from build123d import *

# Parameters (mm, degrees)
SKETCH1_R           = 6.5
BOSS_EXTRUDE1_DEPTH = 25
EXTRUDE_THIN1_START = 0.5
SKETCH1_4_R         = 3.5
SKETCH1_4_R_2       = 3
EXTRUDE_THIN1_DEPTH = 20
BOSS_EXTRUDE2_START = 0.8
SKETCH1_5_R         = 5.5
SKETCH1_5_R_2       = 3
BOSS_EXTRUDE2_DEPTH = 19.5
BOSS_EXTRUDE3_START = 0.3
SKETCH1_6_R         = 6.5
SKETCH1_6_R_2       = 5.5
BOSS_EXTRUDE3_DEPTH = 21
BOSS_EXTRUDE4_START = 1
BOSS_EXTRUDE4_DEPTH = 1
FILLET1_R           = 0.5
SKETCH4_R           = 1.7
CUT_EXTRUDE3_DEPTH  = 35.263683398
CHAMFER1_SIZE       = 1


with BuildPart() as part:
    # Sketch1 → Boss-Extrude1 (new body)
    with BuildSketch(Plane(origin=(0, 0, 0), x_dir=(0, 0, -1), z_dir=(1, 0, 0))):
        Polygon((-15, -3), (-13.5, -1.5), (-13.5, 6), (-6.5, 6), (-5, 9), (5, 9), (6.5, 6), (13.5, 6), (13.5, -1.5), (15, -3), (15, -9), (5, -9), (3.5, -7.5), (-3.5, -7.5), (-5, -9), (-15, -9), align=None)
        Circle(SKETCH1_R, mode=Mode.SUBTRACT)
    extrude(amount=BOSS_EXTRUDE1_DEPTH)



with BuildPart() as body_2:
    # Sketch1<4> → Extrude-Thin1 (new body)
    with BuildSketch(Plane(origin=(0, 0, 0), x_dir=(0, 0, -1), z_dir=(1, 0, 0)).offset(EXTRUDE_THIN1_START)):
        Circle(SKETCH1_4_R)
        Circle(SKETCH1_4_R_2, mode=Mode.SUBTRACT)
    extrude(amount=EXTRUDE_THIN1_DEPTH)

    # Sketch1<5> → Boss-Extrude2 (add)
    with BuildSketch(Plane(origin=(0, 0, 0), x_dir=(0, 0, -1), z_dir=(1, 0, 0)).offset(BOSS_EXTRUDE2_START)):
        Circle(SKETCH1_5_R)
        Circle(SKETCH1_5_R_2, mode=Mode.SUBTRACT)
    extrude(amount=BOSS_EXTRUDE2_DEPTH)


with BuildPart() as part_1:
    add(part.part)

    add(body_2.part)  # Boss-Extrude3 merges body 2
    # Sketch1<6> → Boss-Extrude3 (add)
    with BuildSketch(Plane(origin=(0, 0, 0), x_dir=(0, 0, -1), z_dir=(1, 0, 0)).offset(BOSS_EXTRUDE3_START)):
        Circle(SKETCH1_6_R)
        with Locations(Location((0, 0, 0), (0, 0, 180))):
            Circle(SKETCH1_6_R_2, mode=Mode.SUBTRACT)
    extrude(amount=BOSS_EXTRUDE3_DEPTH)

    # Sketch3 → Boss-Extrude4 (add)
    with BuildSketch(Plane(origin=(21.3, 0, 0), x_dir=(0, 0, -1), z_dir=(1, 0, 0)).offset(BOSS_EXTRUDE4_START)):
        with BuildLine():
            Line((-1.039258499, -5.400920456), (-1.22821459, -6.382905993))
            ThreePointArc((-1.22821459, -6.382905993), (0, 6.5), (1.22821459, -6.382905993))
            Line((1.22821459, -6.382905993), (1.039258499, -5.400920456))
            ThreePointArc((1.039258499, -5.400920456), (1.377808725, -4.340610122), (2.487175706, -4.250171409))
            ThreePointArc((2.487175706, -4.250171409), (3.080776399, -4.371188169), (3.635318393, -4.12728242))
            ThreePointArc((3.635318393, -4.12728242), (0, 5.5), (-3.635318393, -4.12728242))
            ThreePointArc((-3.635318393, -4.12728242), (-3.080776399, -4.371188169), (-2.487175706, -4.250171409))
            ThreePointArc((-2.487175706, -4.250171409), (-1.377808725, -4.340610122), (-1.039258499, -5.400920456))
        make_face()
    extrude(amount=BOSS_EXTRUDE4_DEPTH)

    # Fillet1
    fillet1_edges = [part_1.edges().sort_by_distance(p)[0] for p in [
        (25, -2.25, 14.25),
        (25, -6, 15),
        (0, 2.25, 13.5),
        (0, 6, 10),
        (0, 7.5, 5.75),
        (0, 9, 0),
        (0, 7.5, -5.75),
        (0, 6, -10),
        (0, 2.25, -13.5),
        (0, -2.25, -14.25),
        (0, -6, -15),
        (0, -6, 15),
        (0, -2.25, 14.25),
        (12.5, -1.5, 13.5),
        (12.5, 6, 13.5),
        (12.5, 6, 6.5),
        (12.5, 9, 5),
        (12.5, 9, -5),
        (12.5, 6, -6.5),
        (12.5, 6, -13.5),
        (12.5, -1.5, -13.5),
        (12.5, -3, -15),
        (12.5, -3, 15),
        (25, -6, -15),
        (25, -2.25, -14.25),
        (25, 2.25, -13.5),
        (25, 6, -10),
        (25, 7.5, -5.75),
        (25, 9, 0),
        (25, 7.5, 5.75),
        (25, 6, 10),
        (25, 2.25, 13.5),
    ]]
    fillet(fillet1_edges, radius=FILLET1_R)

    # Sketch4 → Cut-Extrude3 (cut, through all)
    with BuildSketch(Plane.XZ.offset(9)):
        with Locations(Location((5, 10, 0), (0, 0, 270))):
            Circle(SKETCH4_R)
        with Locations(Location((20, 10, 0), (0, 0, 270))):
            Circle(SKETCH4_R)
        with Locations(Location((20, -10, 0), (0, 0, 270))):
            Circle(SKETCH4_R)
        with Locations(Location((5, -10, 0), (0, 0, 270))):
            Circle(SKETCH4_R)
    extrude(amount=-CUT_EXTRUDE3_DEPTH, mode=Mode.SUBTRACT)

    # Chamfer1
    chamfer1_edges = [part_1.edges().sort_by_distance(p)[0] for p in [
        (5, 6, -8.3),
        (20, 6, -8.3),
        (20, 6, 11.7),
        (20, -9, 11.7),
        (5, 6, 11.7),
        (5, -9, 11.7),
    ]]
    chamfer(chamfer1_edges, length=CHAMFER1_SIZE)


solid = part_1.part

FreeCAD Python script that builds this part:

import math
import FreeCAD as App
import Part
import Sketcher
Q = App.Units.Quantity


def edges_at(feature, points):
    """Names of the edges that pass closest to the given points."""
    edges = feature.Shape.Edges
    near = lambda p: min(range(len(edges)), key=lambda i: edges[i].distToShape(Part.Vertex(*p))[0])
    return sorted({f"Edge{near(p) + 1}" for p in points})

doc = App.newDocument("Part")
body = doc.addObject("PartDesign::Body", "Body")

sketch1 = doc.addObject("Sketcher::SketchObject", "Sketch")
body.addObject(sketch1)
sketch1.AttachmentSupport = (doc.YZ_Plane, [""])
sketch1.MapMode = "FlatFace"
sketch1.addGeometry([
    Part.LineSegment(App.Vector(-1.5, 13.5, 0), App.Vector(-3, 15, 0)),
    Part.LineSegment(App.Vector(-3, 15, 0), App.Vector(-9, 15, 0)),
    Part.LineSegment(App.Vector(-9, 15, 0), App.Vector(-9, 5, 0)),
    Part.LineSegment(App.Vector(-9, 5, 0), App.Vector(-7.5, 3.5, 0)),
    Part.LineSegment(App.Vector(-7.5, 3.5, 0), App.Vector(-7.5, -3.5, 0)),
    Part.LineSegment(App.Vector(-7.5, -3.5, 0), App.Vector(-9, -5, 0)),
    Part.LineSegment(App.Vector(-9, -5, 0), App.Vector(-9, -15, 0)),
    Part.LineSegment(App.Vector(-9, -15, 0), App.Vector(-3, -15, 0)),
    Part.LineSegment(App.Vector(-3, -15, 0), App.Vector(-1.5, -13.5, 0)),
    Part.LineSegment(App.Vector(-1.5, -13.5, 0), App.Vector(6, -13.5, 0)),
    Part.LineSegment(App.Vector(6, -13.5, 0), App.Vector(6, -6.5, 0)),
    Part.LineSegment(App.Vector(6, -6.5, 0), App.Vector(9, -5, 0)),
    Part.LineSegment(App.Vector(9, -5, 0), App.Vector(9, 5, 0)),
    Part.LineSegment(App.Vector(9, 5, 0), App.Vector(6, 6.5, 0)),
    Part.LineSegment(App.Vector(6, 6.5, 0), App.Vector(6, 13.5, 0)),
    Part.LineSegment(App.Vector(6, 13.5, 0), App.Vector(-1.5, 13.5, 0)),
    Part.Circle(App.Vector(0, 0, 0), App.Vector(0, 0, 1), 6.5),
], False)
sketch1.addConstraint([
    Sketcher.Constraint("Coincident", 0, 2, 1, 1),
    Sketcher.Constraint("Coincident", 1, 2, 2, 1),
    Sketcher.Constraint("Coincident", 2, 2, 3, 1),
    Sketcher.Constraint("Coincident", 3, 2, 4, 1),
    Sketcher.Constraint("Coincident", 4, 2, 5, 1),
    Sketcher.Constraint("Coincident", 5, 2, 6, 1),
    Sketcher.Constraint("Coincident", 6, 2, 7, 1),
    Sketcher.Constraint("Coincident", 7, 2, 8, 1),
    Sketcher.Constraint("Coincident", 8, 2, 9, 1),
    Sketcher.Constraint("Coincident", 9, 2, 10, 1),
    Sketcher.Constraint("Coincident", 10, 2, 11, 1),
    Sketcher.Constraint("Coincident", 11, 2, 12, 1),
    Sketcher.Constraint("Coincident", 12, 2, 13, 1),
    Sketcher.Constraint("Coincident", 13, 2, 14, 1),
    Sketcher.Constraint("Coincident", 14, 2, 15, 1),
    Sketcher.Constraint("Coincident", 15, 2, 0, 1),
    Sketcher.Constraint("Horizontal", 1),
    Sketcher.Constraint("Vertical", 2),
    Sketcher.Constraint("Vertical", 4),
    Sketcher.Constraint("Vertical", 6),
    Sketcher.Constraint("Horizontal", 7),
    Sketcher.Constraint("Horizontal", 9),
    Sketcher.Constraint("Vertical", 10),
    Sketcher.Constraint("Vertical", 12),
    Sketcher.Constraint("Vertical", 14),
    Sketcher.Constraint("Horizontal", 15),
    Sketcher.Constraint("Coincident", 16, 3, -1, 1),
    Sketcher.Constraint("Symmetric", 2, 2, 11, 2, -1, 1),
    Sketcher.Constraint("Symmetric", 5, 2, 12, 2, -1, 1),
    Sketcher.Constraint("Symmetric", 0, 2, 7, 2, -1),
    Sketcher.Constraint("Symmetric", 10, 2, 13, 2, -1),
    Sketcher.Constraint("Symmetric", 8, 2, 15, 2, -1),
    Sketcher.Constraint("Parallel", 0, 3),
    Sketcher.Constraint("Perpendicular", 3, 5),
    Sketcher.Constraint("Parallel", 5, 8),
    Sketcher.Constraint("Horizontal", 5, 2, 11, 2),
    Sketcher.Constraint("Equal", 4, 10),
    Sketcher.Constraint("Equal", 6, 12),
    Sketcher.Constraint("Equal", 0, 3),
    Sketcher.Constraint("Diameter", 16, Q("13 mm")),
    Sketcher.Constraint("DistanceX", 1, 2, 1, 1, Q("6 mm")),
    Sketcher.Constraint("DistanceY", 2, 2, 2, 1, Q("10 mm")),
    Sketcher.Constraint("DistanceY", 4, 2, 4, 1, Q("7 mm")),
    Sketcher.Constraint("DistanceX", 9, 1, 9, 2, Q("7.5 mm")),
    Sketcher.Constraint("DistanceX", 0, 2, -1, 1, Q("3 mm")),
])
pad1 = doc.addObject("PartDesign::Pad", "Pad")
body.addObject(pad1)
pad1.Profile = sketch1
pad1.Length = 25
body2 = doc.addObject("PartDesign::Body", "Body001")

sketch2 = doc.addObject("Sketcher::SketchObject", "Sketch001")
body2.addObject(sketch2)
sketch2.AttachmentSupport = (doc.getObject("YZ_Plane001"), [""])
sketch2.MapMode = "FlatFace"
sketch2.AttachmentOffset = App.Placement(App.Vector(0, 0, 0.5), App.Rotation())
sketch2.addGeometry([
    Part.Circle(App.Vector(0, 0, 0), App.Vector(0, 0, 1), 3.5),
    Part.Circle(App.Vector(0, 0, 0), App.Vector(0, 0, 1), 3),
], False)
sketch2.addConstraint([
    Sketcher.Constraint("Coincident", 0, 3, -1, 1),
    Sketcher.Constraint("Coincident", 1, 3, -1, 1),
    Sketcher.Constraint("Diameter", 0, Q("7 mm")),
    Sketcher.Constraint("Diameter", 1, Q("6 mm")),
])
pad2 = doc.addObject("PartDesign::Pad", "Pad001")
body2.addObject(pad2)
pad2.Profile = sketch2
pad2.Length = 20

sketch3 = doc.addObject("Sketcher::SketchObject", "Sketch002")
body2.addObject(sketch3)
sketch3.AttachmentSupport = (doc.getObject("YZ_Plane001"), [""])
sketch3.MapMode = "FlatFace"
sketch3.AttachmentOffset = App.Placement(App.Vector(0, 0, 0.8), App.Rotation())
sketch3.addGeometry([
    Part.Circle(App.Vector(0, 0, 0), App.Vector(0, 0, 1), 5.5),
    Part.Circle(App.Vector(0, 0, 0), App.Vector(0, 0, 1), 3),
], False)
sketch3.addConstraint([
    Sketcher.Constraint("Coincident", 0, 3, -1, 1),
    Sketcher.Constraint("Coincident", 1, 3, -1, 1),
    Sketcher.Constraint("Diameter", 0, Q("11 mm")),
    Sketcher.Constraint("Diameter", 1, Q("6 mm")),
])
pad3 = doc.addObject("PartDesign::Pad", "Pad002")
body2.addObject(pad3)
pad3.Profile = sketch3
pad3.Length = 19.5
body.AllowCompound = True
doc.recompute()

boolean = doc.addObject("PartDesign::Boolean", "Boolean")
body.addObject(boolean)
boolean.Type = "Fuse"
boolean.addObjects([body2])

sketch4 = doc.addObject("Sketcher::SketchObject", "Sketch003")
body.addObject(sketch4)
sketch4.AttachmentSupport = (doc.YZ_Plane, [""])
sketch4.MapMode = "FlatFace"
sketch4.AttachmentOffset = App.Placement(App.Vector(0, 0, 0.3), App.Rotation())
sketch4.addGeometry([
    Part.Circle(App.Vector(0, 0, 0), App.Vector(0, 0, 1), 6),
    Part.Circle(App.Vector(0, 0, 0), App.Vector(0, 0, 1), 6),
], False)
sketch4.addConstraint([
    Sketcher.Constraint("Coincident", 0, 3, -1, 1),
    Sketcher.Constraint("Coincident", 1, 3, -1, 1),
    Sketcher.Constraint("Diameter", 0, Q("13 mm")),
    Sketcher.Constraint("Diameter", 1, Q("11 mm")),
])
pad4 = doc.addObject("PartDesign::Pad", "Pad003")
body.addObject(pad4)
pad4.Profile = sketch4
pad4.Length = 21

sketch5 = doc.addObject("Sketcher::SketchObject", "Sketch004")
body.addObject(sketch5)
sketch5.AttachmentSupport = (doc.YZ_Plane, [""])
sketch5.MapMode = "FlatFace"
sketch5.AttachmentOffset = App.Placement(App.Vector(0, 0, 22.3), App.Rotation())
sketch5.addGeometry([
    Part.LineSegment(App.Vector(-6.4, 1.2, 0), App.Vector(-5.4, 1, 0)),
    Part.ArcOfCircle(Part.Circle(App.Vector(-5.1, 2, 0), App.Vector(0, 0, 1), 1), math.radians(-106), math.radians(29)),
    Part.ArcOfCircle(Part.Circle(App.Vector(-3.4, 3, 0), App.Vector(0, 0, 1), 1), math.radians(139), math.radians(209)),
    Part.ArcOfCircle(Part.Circle(App.Vector(0, 0, 0), App.Vector(0, 0, 1), 5.5), math.radians(-139), math.radians(139)),
    Part.ArcOfCircle(Part.Circle(App.Vector(-3.4, -3, 0), App.Vector(0, 0, 1), 1), math.radians(151), math.radians(221)),
    Part.ArcOfCircle(Part.Circle(App.Vector(-5.1, -2, 0), App.Vector(0, 0, 1), 1), math.radians(-29), math.radians(106)),
    Part.LineSegment(App.Vector(-5.4, -1, 0), App.Vector(-6.4, -1.2, 0)),
    Part.ArcOfCircle(Part.Circle(App.Vector(0, 0, 0), App.Vector(0, 0, 1), 6.5), math.radians(-169), math.radians(169)),
], False)
sketch5.addConstraint([
    Sketcher.Constraint("Coincident", 0, 2, 1, 1),
    Sketcher.Constraint("Tangent", 1, 2, 2, 2),
    Sketcher.Constraint("Tangent", 2, 1, 3, 2),
    Sketcher.Constraint("Tangent", 3, 1, 4, 2),
    Sketcher.Constraint("Tangent", 4, 1, 5, 1),
    Sketcher.Constraint("Coincident", 5, 2, 6, 1),
    Sketcher.Constraint("Coincident", 6, 2, 7, 1),
    Sketcher.Constraint("Coincident", 7, 2, 0, 1),
    Sketcher.Constraint("Coincident", 3, 3, -1, 1),
    Sketcher.Constraint("Coincident", 7, 3, -1, 1),
    Sketcher.Constraint("Equal", 1, 2),
    Sketcher.Constraint("Equal", 2, 4),
    Sketcher.Constraint("Equal", 4, 5),
    Sketcher.Constraint("Symmetric", 1, 3, 5, 3, -1),
    Sketcher.Constraint("Vertical", 0, 2, 5, 2),
    Sketcher.Constraint("Vertical", 6, 2, 7, 2),
    Sketcher.Constraint("Radius", 1, Q("1 mm")),
    Sketcher.Constraint("Radius", 3, Q("5.5 mm")),
    Sketcher.Constraint("Radius", 7, Q("6.5 mm")),
    Sketcher.Constraint("Distance", 0, Q("1 mm")),
    Sketcher.Constraint("DistanceY", -1, 1, 1, 3, Q("2 mm")),
    Sketcher.Constraint("DistanceY", -1, 1, 2, 3, Q("2.974351 mm")),
    Sketcher.Constraint("DistanceX", 6, 2, 5, 3, Q("1.259431 mm")),
])
pad5 = doc.addObject("PartDesign::Pad", "Pad004")
body.addObject(pad5)
pad5.Profile = sketch5
pad5.Length = 1
doc.recompute()

fillet = doc.addObject("PartDesign::Fillet", "Fillet")
body.addObject(fillet)
fillet.Base = (pad5, edges_at(pad5, [
    (25, -2.25, 14.25),
    (25, -6, 15),
    (0, 2.25, 13.5),
    (0, 6, 10),
    (0, 7.5, 5.75),
    (0, 9, 0),
    (0, 7.5, -5.75),
    (0, 6, -10),
    (0, 2.25, -13.5),
    (0, -2.25, -14.25),
    (0, -6, -15),
    (0, -6, 15),
    (0, -2.25, 14.25),
    (12.5, -1.5, 13.5),
    (12.5, 6, 13.5),
    (12.5, 6, 6.5),
    (12.5, 9, 5),
    (12.5, 9, -5),
    (12.5, 6, -6.5),
    (12.5, 6, -13.5),
    (12.5, -1.5, -13.5),
    (12.5, -3, -15),
    (12.5, -3, 15),
    (25, -6, -15),
    (25, -2.25, -14.25),
    (25, 2.25, -13.5),
    (25, 6, -10),
    (25, 7.5, -5.75),
    (25, 9, 0),
    (25, 7.5, 5.75),
    (25, 6, 10),
    (25, 2.25, 13.5),
]))
fillet.Radius = 0.5

sketch6 = doc.addObject("Sketcher::SketchObject", "Sketch005")
body.addObject(sketch6)
sketch6.AttachmentSupport = (doc.XZ_Plane, [""])
sketch6.MapMode = "FlatFace"
sketch6.AttachmentOffset = App.Placement(App.Vector(0, 0, 9), App.Rotation())
sketch6.addGeometry([
    Part.Circle(App.Vector(5, 10, 0), App.Vector(0, 0, 1), 1.7),
    Part.Circle(App.Vector(20, 10, 0), App.Vector(0, 0, 1), 1.7),
    Part.Circle(App.Vector(20, -10, 0), App.Vector(0, 0, 1), 1.7),
    Part.Circle(App.Vector(5, -10, 0), App.Vector(0, 0, 1), 1.7),
], False)
sketch6.addConstraint([
    Sketcher.Constraint("Equal", 0, 1),
    Sketcher.Constraint("Equal", 1, 2),
    Sketcher.Constraint("Equal", 2, 3),
    Sketcher.Constraint("Symmetric", 1, 3, 2, 3, -1),
    Sketcher.Constraint("Symmetric", 0, 3, 3, 3, -1),
    Sketcher.Constraint("Horizontal", 0, 3, 1, 3),
    Sketcher.Constraint("Diameter", 0, Q("3.4 mm")),
    Sketcher.Constraint("DistanceX", -1, 1, 0, 3, Q("5 mm")),
    Sketcher.Constraint("DistanceY", -1, 1, 0, 3, Q("10 mm")),
    Sketcher.Constraint("DistanceX", -1, 1, 1, 3, Q("20 mm")),
])
pocket1 = doc.addObject("PartDesign::Pocket", "Pocket")
body.addObject(pocket1)
pocket1.Profile = sketch6
pocket1.Type = "ThroughAll"
doc.recompute()

chamfer = doc.addObject("PartDesign::Chamfer", "Chamfer")
body.addObject(chamfer)
chamfer.Base = (pocket1, edges_at(pocket1, [
    (5, 6, -8.3),
    (20, 6, -8.3),
    (20, 6, 11.7),
    (20, -9, 11.7),
    (5, 6, 11.7),
    (5, -9, 11.7),
]))
chamfer.Size = 1

doc.recompute()
